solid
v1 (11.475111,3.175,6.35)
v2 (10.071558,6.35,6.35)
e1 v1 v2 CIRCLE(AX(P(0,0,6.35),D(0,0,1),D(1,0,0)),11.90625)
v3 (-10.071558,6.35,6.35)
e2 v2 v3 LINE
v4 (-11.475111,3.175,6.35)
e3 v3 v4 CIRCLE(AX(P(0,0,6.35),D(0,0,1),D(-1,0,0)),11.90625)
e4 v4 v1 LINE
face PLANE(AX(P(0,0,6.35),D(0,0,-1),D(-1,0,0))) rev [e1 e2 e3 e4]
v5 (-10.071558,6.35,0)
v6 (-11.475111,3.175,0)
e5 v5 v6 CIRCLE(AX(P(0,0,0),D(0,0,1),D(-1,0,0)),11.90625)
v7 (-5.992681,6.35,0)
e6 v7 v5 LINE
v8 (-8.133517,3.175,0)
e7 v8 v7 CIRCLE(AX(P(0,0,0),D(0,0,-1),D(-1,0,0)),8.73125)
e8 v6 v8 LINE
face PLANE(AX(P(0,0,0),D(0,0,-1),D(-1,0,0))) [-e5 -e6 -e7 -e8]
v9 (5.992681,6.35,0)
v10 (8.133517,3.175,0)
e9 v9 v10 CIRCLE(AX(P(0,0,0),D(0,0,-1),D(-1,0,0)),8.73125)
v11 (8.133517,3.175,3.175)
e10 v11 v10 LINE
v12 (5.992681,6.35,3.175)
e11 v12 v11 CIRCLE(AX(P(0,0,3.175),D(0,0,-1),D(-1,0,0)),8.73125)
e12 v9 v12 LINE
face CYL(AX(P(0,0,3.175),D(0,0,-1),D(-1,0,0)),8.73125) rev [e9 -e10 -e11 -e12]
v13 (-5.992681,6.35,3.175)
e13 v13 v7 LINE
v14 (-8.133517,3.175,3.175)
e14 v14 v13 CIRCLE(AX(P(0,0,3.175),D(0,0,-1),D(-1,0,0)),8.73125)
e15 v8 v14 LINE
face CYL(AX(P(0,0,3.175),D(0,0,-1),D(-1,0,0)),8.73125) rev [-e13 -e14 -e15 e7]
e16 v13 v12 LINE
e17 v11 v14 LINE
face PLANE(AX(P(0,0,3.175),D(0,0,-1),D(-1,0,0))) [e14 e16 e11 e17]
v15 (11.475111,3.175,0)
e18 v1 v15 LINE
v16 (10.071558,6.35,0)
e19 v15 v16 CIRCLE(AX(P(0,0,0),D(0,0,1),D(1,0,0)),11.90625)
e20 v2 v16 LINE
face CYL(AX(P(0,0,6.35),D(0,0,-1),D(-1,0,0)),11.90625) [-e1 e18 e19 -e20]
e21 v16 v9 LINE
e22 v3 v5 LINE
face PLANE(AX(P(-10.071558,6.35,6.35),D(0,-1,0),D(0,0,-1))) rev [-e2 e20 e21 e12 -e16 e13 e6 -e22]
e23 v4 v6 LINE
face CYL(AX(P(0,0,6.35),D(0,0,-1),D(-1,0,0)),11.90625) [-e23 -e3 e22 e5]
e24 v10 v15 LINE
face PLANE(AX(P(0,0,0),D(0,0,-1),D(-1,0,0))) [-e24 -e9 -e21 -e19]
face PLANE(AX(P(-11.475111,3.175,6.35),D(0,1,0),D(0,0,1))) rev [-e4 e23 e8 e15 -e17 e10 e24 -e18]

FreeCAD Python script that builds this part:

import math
import FreeCAD as App
import Part
import Sketcher
Q = App.Units.Quantity

doc = App.newDocument("Part")
params = doc.addObject("Spreadsheet::Sheet", "Params")
for row, (alias, value) in enumerate([
    ("sketch1_radius", "0.46875 in"),
    ("pad1_length", "0.25 in"),
    ("sketch2_diameter", "0.6875 in"),
    ("pocket1_length", "0.125 in"),
], start=1):
    params.set(f"A{row}", alias)
    params.set(f"B{row}", "=" + value)
    params.setAlias(f"B{row}", alias)

body = doc.addObject("PartDesign::Body", "Body")

# Sketch on XY plane
sketch1 = body.newObject("Sketcher::SketchObject", "Sketch")
sketch1.AttachmentSupport = (doc.getObject("XY_Plane"), [""])
sketch1.MapMode = "FlatFace"
sketch1.addGeometry(Part.LineSegment(App.Vector(10.1, 6.3, 0), App.Vector(-10.1, 6.3, 0)), False)
sketch1.addGeometry(Part.ArcOfCircle(Part.Circle(App.Vector(0, 0, 0), App.Vector(0, 0, 1), 11.9), math.radians(147.77), math.radians(164.53)), False)
sketch1.addGeometry(Part.LineSegment(App.Vector(-11.5, 3.2, 0), App.Vector(11.5, 3.2, 0)), False)
sketch1.addGeometry(Part.ArcOfCircle(Part.Circle(App.Vector(0, 0, 0), App.Vector(0, 0, 1), 11.9), math.radians(15.47), math.radians(32.23)), False)
sketch1.addConstraint(Sketcher.Constraint("Coincident", 0, 2, 1, 1))
sketch1.addConstraint(Sketcher.Constraint("Coincident", 1, 2, 2, 1))
sketch1.addConstraint(Sketcher.Constraint("Coincident", 2, 2, 3, 1))
sketch1.addConstraint(Sketcher.Constraint("Coincident", 3, 2, 0, 1))
sketch1.addConstraint(Sketcher.Constraint("Horizontal", 0))
sketch1.addConstraint(Sketcher.Constraint("Horizontal", 2))
sketch1.addConstraint(Sketcher.Constraint("Coincident", 1, 3, -1, 1))
sketch1.addConstraint(Sketcher.Constraint("Coincident", 3, 3, -1, 1))
sketch1.addConstraint(Sketcher.Constraint("Equal", 1, 3))
sketch1.addConstraint(Sketcher.Constraint("Radius", 1, Q("0.46875 in")))
sketch1.addConstraint(Sketcher.Constraint("DistanceY", -1, 1, 0, 2, Q("0.25 in")))
sketch1.addConstraint(Sketcher.Constraint("DistanceY", -1, 1, 1, 2, Q("0.125 in")))
sketch1.setExpression("Constraints[9]", "Params.sketch1_radius")
pad1 = body.newObject("PartDesign::Pad", "Pad")
pad1.Profile = sketch1
pad1.setExpression("Length", "Params.pad1_length")

# Sketch on XY plane
sketch2 = body.newObject("Sketcher::SketchObject", "Sketch001")
sketch2.AttachmentSupport = (doc.getObject("XY_Plane"), [""])
sketch2.MapMode = "FlatFace"
sketch2.addGeometry(Part.Circle(App.Vector(0, 0, 0), App.Vector(0, 0, 1), 9), False)
sketch2.addConstraint(Sketcher.Constraint("Coincident", 0, 3, -1, 1))
sketch2.addConstraint(Sketcher.Constraint("Diameter", 0, Q("0.6875 in")))
sketch2.setExpression("Constraints[1]", "Params.sketch2_diameter")
pocket1 = body.newObject("PartDesign::Pocket", "Pocket")
pocket1.Profile = sketch2
pocket1.setExpression("Length", "Params.pocket1_length")
pocket1.Reversed = True

doc.recompute()
